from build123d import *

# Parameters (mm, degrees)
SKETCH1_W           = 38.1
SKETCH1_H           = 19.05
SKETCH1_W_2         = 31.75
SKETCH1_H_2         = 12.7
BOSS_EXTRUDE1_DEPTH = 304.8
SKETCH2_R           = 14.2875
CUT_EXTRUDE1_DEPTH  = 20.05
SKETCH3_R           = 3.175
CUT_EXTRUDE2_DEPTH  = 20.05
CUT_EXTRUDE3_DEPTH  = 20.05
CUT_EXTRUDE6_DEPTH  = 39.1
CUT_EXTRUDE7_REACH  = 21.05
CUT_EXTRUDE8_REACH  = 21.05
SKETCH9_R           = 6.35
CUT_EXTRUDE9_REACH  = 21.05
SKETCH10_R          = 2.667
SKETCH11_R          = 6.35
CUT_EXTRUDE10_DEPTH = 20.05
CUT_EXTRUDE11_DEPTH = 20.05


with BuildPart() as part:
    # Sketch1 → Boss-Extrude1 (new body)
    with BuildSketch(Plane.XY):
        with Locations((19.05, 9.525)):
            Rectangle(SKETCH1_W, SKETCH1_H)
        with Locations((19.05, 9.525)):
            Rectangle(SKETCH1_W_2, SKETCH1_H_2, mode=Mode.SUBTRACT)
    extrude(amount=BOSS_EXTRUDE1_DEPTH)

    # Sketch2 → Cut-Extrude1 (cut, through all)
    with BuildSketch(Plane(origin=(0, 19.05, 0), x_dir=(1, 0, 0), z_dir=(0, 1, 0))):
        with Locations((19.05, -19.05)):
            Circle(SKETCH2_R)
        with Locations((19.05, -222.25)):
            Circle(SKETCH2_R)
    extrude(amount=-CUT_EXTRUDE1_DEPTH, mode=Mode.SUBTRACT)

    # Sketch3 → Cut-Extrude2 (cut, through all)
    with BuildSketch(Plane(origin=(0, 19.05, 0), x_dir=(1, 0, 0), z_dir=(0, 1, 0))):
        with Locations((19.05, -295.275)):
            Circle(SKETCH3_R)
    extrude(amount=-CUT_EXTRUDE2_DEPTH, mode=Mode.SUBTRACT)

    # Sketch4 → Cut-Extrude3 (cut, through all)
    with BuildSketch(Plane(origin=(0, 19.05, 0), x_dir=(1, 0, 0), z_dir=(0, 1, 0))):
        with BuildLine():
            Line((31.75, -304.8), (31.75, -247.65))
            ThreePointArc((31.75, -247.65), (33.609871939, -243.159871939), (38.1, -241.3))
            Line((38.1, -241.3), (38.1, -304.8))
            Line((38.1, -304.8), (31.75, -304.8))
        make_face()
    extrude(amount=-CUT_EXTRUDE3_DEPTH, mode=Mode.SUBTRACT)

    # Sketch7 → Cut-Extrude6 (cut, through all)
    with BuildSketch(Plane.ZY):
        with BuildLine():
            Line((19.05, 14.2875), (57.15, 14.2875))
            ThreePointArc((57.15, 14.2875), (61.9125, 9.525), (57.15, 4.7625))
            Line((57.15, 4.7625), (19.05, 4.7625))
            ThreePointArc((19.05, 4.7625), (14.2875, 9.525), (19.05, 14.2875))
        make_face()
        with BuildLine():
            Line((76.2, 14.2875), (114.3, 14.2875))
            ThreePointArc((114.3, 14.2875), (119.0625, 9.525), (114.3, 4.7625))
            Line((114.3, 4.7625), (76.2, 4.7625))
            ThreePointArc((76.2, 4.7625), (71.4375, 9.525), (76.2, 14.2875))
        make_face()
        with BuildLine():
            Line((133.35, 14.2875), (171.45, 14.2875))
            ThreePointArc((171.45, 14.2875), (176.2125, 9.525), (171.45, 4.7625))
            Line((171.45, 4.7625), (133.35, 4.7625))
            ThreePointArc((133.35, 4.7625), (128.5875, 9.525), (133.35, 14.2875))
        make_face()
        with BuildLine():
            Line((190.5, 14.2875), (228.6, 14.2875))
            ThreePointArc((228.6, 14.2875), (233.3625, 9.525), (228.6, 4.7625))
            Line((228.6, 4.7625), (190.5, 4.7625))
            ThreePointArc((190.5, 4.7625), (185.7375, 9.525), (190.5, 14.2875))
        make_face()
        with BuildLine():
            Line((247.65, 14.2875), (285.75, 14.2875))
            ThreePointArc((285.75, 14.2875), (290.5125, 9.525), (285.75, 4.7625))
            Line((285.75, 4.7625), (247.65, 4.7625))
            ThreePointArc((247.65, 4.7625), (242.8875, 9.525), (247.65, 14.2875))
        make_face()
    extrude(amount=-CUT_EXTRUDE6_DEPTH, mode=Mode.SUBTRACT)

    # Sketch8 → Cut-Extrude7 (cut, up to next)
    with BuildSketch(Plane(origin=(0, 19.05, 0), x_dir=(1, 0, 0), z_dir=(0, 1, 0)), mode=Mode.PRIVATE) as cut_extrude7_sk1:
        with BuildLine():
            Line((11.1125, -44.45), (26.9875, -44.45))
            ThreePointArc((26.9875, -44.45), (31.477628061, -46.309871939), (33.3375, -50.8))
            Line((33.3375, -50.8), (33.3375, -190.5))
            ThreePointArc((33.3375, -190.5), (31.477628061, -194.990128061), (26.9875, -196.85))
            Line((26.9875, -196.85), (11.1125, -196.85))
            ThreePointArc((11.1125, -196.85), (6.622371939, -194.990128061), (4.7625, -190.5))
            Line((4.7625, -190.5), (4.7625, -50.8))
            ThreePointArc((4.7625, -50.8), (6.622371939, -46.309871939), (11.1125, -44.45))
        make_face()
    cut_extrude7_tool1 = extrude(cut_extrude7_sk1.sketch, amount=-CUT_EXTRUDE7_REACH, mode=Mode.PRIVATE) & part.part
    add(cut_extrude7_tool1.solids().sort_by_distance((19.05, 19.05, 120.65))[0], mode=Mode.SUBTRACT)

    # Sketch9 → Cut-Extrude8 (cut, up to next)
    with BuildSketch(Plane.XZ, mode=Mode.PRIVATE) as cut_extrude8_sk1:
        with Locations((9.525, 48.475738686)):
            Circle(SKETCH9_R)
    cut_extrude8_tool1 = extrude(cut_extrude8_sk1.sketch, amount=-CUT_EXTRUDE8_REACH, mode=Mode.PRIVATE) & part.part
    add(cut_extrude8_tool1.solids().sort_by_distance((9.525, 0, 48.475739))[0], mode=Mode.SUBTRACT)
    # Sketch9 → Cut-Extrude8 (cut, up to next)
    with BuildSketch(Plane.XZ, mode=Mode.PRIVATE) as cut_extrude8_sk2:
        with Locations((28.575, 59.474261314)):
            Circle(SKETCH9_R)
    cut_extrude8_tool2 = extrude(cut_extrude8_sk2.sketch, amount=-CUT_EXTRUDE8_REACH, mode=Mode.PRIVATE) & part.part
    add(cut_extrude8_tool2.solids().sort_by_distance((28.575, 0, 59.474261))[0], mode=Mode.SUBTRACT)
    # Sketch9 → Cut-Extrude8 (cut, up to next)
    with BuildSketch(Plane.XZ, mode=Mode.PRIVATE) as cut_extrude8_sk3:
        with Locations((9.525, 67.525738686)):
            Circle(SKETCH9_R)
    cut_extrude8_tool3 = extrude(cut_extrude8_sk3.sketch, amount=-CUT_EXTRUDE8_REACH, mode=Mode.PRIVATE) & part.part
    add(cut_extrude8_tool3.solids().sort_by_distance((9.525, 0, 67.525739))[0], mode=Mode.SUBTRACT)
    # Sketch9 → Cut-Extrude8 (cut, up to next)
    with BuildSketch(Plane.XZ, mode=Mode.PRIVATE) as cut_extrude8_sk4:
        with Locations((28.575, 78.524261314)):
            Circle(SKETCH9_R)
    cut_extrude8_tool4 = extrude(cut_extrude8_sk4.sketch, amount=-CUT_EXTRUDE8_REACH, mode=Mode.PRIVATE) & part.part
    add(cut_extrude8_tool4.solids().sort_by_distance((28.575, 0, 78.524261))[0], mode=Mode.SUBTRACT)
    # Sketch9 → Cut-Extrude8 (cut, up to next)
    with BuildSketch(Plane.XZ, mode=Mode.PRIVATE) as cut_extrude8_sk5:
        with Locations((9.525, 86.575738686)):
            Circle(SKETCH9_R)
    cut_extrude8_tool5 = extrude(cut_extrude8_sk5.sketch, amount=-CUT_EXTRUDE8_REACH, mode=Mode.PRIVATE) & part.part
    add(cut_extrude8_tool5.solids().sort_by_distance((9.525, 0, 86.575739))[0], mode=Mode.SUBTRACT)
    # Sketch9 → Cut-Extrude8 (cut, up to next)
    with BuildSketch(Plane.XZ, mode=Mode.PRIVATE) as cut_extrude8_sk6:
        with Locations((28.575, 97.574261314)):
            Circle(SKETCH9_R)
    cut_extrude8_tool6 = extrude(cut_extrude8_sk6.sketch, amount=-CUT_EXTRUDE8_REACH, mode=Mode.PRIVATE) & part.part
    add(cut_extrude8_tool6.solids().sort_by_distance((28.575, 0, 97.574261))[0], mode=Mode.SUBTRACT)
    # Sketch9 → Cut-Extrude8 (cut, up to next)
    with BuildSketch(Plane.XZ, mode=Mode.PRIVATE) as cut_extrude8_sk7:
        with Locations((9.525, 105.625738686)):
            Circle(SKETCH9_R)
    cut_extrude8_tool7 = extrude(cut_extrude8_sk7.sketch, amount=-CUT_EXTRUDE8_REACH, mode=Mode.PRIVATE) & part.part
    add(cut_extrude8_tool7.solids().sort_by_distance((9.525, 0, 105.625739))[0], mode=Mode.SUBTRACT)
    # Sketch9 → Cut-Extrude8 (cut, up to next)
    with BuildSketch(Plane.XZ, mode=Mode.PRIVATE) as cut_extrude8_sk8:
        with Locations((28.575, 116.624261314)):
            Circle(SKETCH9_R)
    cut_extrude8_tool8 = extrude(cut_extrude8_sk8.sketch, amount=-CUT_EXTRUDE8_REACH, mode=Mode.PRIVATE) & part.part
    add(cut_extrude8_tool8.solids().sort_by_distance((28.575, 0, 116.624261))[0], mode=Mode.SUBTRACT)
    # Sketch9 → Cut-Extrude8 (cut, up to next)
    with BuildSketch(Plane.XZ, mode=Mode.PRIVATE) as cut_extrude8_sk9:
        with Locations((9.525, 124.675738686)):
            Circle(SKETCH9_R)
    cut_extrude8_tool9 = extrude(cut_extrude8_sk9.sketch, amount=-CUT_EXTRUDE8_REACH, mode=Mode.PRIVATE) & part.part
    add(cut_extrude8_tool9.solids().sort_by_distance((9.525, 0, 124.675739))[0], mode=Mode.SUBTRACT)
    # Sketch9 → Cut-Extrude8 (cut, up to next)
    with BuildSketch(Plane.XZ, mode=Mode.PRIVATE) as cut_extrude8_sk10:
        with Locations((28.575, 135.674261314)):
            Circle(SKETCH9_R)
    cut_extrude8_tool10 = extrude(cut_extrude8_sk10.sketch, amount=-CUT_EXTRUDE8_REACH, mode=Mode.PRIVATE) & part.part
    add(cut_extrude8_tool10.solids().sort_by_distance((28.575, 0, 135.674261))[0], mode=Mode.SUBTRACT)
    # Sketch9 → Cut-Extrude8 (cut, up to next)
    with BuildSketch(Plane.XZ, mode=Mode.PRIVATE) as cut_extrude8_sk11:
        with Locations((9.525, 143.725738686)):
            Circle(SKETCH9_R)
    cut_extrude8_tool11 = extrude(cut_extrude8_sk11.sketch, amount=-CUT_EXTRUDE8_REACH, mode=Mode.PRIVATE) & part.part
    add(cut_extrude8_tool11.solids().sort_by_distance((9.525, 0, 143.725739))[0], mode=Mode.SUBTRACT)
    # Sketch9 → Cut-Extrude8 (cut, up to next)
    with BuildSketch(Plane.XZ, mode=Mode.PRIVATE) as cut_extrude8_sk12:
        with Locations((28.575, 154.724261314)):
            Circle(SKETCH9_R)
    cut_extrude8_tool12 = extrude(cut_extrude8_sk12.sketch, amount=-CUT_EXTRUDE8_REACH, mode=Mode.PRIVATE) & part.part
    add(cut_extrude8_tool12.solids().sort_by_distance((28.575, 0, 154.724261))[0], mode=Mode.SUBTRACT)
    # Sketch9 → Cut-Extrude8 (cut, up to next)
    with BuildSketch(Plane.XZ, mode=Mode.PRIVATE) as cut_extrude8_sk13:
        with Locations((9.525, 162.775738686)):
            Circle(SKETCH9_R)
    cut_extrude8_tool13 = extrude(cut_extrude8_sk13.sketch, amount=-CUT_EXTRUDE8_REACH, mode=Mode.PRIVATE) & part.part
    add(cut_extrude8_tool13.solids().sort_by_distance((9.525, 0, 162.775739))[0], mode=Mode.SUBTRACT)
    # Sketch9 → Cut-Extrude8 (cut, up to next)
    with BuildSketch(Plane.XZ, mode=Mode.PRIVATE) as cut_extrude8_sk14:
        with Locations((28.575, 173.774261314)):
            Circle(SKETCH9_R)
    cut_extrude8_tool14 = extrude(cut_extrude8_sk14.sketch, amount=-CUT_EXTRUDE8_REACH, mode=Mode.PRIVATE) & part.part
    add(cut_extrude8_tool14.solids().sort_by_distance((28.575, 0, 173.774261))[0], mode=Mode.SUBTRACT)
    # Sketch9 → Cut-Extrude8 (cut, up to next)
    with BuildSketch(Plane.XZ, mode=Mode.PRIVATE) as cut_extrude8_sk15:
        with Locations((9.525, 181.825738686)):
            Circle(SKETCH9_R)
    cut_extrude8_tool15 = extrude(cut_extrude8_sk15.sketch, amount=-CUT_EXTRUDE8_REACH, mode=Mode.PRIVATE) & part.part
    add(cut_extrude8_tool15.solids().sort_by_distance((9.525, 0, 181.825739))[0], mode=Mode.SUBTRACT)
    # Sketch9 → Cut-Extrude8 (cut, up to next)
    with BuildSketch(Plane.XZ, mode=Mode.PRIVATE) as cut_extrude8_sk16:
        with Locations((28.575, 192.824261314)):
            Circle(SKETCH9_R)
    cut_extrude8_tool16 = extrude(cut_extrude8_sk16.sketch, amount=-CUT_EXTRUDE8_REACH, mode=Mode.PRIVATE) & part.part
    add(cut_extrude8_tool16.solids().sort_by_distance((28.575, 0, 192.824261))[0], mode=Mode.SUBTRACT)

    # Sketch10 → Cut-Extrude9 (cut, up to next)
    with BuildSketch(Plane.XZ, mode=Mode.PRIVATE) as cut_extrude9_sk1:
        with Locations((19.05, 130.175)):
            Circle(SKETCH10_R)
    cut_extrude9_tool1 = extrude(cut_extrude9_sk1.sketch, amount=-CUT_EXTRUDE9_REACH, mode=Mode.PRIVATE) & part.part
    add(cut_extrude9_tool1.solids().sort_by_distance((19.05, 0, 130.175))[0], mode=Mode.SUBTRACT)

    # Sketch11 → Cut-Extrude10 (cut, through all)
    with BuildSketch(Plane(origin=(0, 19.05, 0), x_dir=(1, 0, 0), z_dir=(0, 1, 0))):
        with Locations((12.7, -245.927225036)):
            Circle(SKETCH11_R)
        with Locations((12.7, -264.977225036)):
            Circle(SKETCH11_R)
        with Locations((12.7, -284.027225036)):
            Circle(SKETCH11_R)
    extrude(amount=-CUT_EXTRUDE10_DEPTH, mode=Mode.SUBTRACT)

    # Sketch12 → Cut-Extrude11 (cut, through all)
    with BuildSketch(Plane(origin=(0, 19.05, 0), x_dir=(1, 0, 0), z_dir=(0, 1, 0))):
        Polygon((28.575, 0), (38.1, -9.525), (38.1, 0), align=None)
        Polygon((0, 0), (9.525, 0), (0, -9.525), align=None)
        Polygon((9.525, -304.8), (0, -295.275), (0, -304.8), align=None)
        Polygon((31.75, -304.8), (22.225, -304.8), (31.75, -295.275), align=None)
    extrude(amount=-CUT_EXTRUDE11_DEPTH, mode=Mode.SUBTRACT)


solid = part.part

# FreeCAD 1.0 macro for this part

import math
import FreeCAD as App
import Part
import Sketcher
from FreeCAD import Vector
Q = App.Units.Quantity


def add_polygon(sketch, points):
    """Adds a closed chain of lines whose ends are joined by coincident constraints."""
    first, n = sketch.GeometryCount, len(points)
    for a, b in zip(points, points[1:] + points[:1]):
        sketch.addGeometry(Part.LineSegment(App.Vector(*a, 0), App.Vector(*b, 0)), False)
    for i in range(n):
        sketch.addConstraint(Sketcher.Constraint("Coincident", first + i, 2, first + (i + 1) % n, 1))

doc = App.newDocument("Part")
body = doc.addObject("PartDesign::Body", "Body")

# Sketch on XY plane
sketch1 = doc.addObject("Sketcher::SketchObject", "Sketch")
body.addObject(sketch1)
sketch1.AttachmentSupport = (doc.XY_Plane, [""])
sketch1.MapMode = "FlatFace"
add_polygon(sketch1, [(0, 19), (0, 0), (38, 0), (38, 19)])  # lines 0-3
add_polygon(sketch1, [(35, 3), (3, 3), (3, 16), (35, 16)])  # lines 4-7
sketch1.addConstraint([
    Sketcher.Constraint("Vertical", 0),
    Sketcher.Constraint("Horizontal", 1),
    Sketcher.Constraint("Vertical", 2),
    Sketcher.Constraint("Horizontal", 3),
    Sketcher.Constraint("Horizontal", 4),
    Sketcher.Constraint("Vertical", 5),
    Sketcher.Constraint("Horizontal", 6),
    Sketcher.Constraint("Vertical", 7),
    Sketcher.Constraint("Coincident", 0, 2, -1, 1),
    Sketcher.Constraint("DistanceX", 1, 1, 1, 2, Q("1.5 in")),
    Sketcher.Constraint("DistanceY", 5, 1, 5, 2, Q("0.5 in")),
    Sketcher.Constraint("DistanceX", 4, 2, 4, 1, Q("1.25 in")),
    Sketcher.Constraint("DistanceY", 0, 2, 0, 1, Q("0.75 in")),
    Sketcher.Constraint("DistanceX", -1, 1, 4, 2, Q("0.125 in")),
    Sketcher.Constraint("DistanceY", -1, 1, 4, 2, Q("0.125 in")),
])
pad1 = doc.addObject("PartDesign::Pad", "Pad")
body.addObject(pad1)
pad1.Profile = sketch1
pad1.Length = Q("12 in")

# Sketch on XZ plane
sketch2 = doc.addObject("Sketcher::SketchObject", "Sketch001")
body.addObject(sketch2)
sketch2.AttachmentSupport = (doc.XZ_Plane, [""])
sketch2.MapMode = "FlatFace"
sketch2.AttachmentOffset = App.Placement(Vector(0, 0, -0.75 * 25.4), App.Rotation())
sketch2.addGeometry([
    Part.Circle(Vector(19, 19, 0), Vector(0, 0, 1), 14),
    Part.Circle(Vector(19, 222, 0), Vector(0, 0, 1), 14),
], False)
sketch2.addConstraint([
    Sketcher.Constraint("Equal", 0, 1),
    Sketcher.Constraint("Vertical", 0, 3, 1, 3),
    Sketcher.Constraint("Diameter", 0, Q("1.125 in")),
    Sketcher.Constraint("DistanceY", 0, 3, 1, 3, Q("8 in")),
    Sketcher.Constraint("DistanceX", -1, 1, 0, 3, Q("0.75 in")),
    Sketcher.Constraint("DistanceY", -1, 1, 0, 3, Q("0.75 in")),
])
pocket1 = doc.addObject("PartDesign::Pocket", "Pocket")
body.addObject(pocket1)
pocket1.Profile = sketch2
pocket1.Type = "ThroughAll"
pocket1.Reversed = True

# Sketch on XZ plane
sketch3 = doc.addObject("Sketcher::SketchObject", "Sketch002")
body.addObject(sketch3)
sketch3.AttachmentSupport = (doc.XZ_Plane, [""])
sketch3.MapMode = "FlatFace"
sketch3.AttachmentOffset = App.Placement(Vector(0, 0, -0.75 * 25.4), App.Rotation())
sketch3.addGeometry(Part.Circle(Vector(19.1, 295.3, 0), Vector(0, 0, 1), 3.2), False)
sketch3.addConstraint([
    Sketcher.Constraint("Diameter", 0, Q("0.25 in")),
    Sketcher.Constraint("DistanceX", -1, 1, 0, 3, Q("0.75 in")),
    Sketcher.Constraint("DistanceY", -1, 1, 0, 3, Q("11.625 in")),
])
pocket2 = doc.addObject("PartDesign::Pocket", "Pocket001")
body.addObject(pocket2)
pocket2.Profile = sketch3
pocket2.Type = "ThroughAll"
pocket2.Reversed = True

# Sketch on XZ plane
sketch4 = doc.addObject("Sketcher::SketchObject", "Sketch003")
body.addObject(sketch4)
sketch4.AttachmentSupport = (doc.XZ_Plane, [""])
sketch4.MapMode = "FlatFace"
sketch4.AttachmentOffset = App.Placement(Vector(0, 0, -0.75 * 25.4), App.Rotation())
sketch4.addGeometry([
    Part.LineSegment(Vector(32, 248, 0), Vector(32, 305, 0)),
    Part.LineSegment(Vector(32, 305, 0), Vector(38, 305, 0)),
    Part.LineSegment(Vector(38, 305, 0), Vector(38, 241, 0)),
    Part.ArcOfCircle(Part.Circle(Vector(38, 248, 0), Vector(0, 0, 1), 6), math.radians(180), math.radians(270)),
], False)
sketch4.addConstraint([
    Sketcher.Constraint("Coincident", 0, 2, 1, 1),
    Sketcher.Constraint("Coincident", 1, 2, 2, 1),
    Sketcher.Constraint("Coincident", 2, 2, 3, 2),
    Sketcher.Constraint("Tangent", 3, 1, 0, 1),
    Sketcher.Constraint("Vertical", 0),
    Sketcher.Constraint("Horizontal", 1),
    Sketcher.Constraint("Vertical", 2),
    Sketcher.Constraint("Vertical", 3, 3, 1, 2),
    Sketcher.Constraint("Radius", 3, Q("0.25 in")),
    Sketcher.Constraint("DistanceY", 2, 2, 2, 1, Q("2.5 in")),
    Sketcher.Constraint("DistanceY", -1, 1, 0, 2, Q("12 in")),
    Sketcher.Constraint("DistanceX", -1, 1, 3, 3, Q("1.5 in")),
])
pocket3 = doc.addObject("PartDesign::Pocket", "Pocket002")
body.addObject(pocket3)
pocket3.Profile = sketch4
pocket3.Type = "ThroughAll"
pocket3.Reversed = True

# Sketch on YZ plane
sketch5 = doc.addObject("Sketcher::SketchObject", "Sketch004")
body.addObject(sketch5)
sketch5.AttachmentSupport = (doc.YZ_Plane, [""])
sketch5.MapMode = "FlatFace"
sketch5.addGeometry([
    Part.LineSegment(Vector(14.3, 57.1, 0), Vector(14.3, 19.1, 0)),  # 0
    Part.ArcOfCircle(Part.Circle(Vector(9.5, 19.1, 0), Vector(0, 0, 1), 4.8), math.radians(180), math.radians(360)),  # 1
    Part.LineSegment(Vector(4.8, 19.1, 0), Vector(4.8, 57.1, 0)),  # 2
    Part.ArcOfCircle(Part.Circle(Vector(9.5, 57.1, 0), Vector(0, 0, 1), 4.8), math.radians(0), math.radians(180)),  # 3
    Part.LineSegment(Vector(14.3, 114.3, 0), Vector(14.3, 76.2, 0)),  # 4
    Part.ArcOfCircle(Part.Circle(Vector(9.5, 76.2, 0), Vector(0, 0, 1), 4.8), math.radians(180), math.radians(360)),  # 5
    Part.LineSegment(Vector(4.8, 76.2, 0), Vector(4.8, 114.3, 0)),  # 6
    Part.ArcOfCircle(Part.Circle(Vector(9.5, 114.3, 0), Vector(0, 0, 1), 4.8), math.radians(0), math.radians(180)),  # 7
    Part.LineSegment(Vector(14.3, 171.4, 0), Vector(14.3, 133.3, 0)),  # 8
    Part.ArcOfCircle(Part.Circle(Vector(9.5, 133.3, 0), Vector(0, 0, 1), 4.8), math.radians(180), math.radians(360)),  # 9
    Part.LineSegment(Vector(4.8, 133.3, 0), Vector(4.8, 171.4, 0)),  # 10
    Part.ArcOfCircle(Part.Circle(Vector(9.5, 171.4, 0), Vector(0, 0, 1), 4.8), math.radians(0), math.radians(180)),  # 11
    Part.LineSegment(Vector(14.3, 228.6, 0), Vector(14.3, 190.5, 0)),  # 12
    Part.ArcOfCircle(Part.Circle(Vector(9.5, 190.5, 0), Vector(0, 0, 1), 4.8), math.radians(180), math.radians(360)),  # 13
    Part.LineSegment(Vector(4.8, 190.5, 0), Vector(4.8, 228.6, 0)),  # 14
    Part.ArcOfCircle(Part.Circle(Vector(9.5, 228.6, 0), Vector(0, 0, 1), 4.8), math.radians(0), math.radians(180)),  # 15
    Part.LineSegment(Vector(14.3, 285.8, 0), Vector(14.3, 247.7, 0)),  # 16
    Part.ArcOfCircle(Part.Circle(Vector(9.5, 247.7, 0), Vector(0, 0, 1), 4.8), math.radians(180), math.radians(360)),  # 17
    Part.LineSegment(Vector(4.8, 247.7, 0), Vector(4.8, 285.8, 0)),  # 18
    Part.ArcOfCircle(Part.Circle(Vector(9.5, 285.8, 0), Vector(0, 0, 1), 4.8), math.radians(0), math.radians(180)),  # 19
], False)
sketch5.addConstraint([
    Sketcher.Constraint("Tangent", 0, 2, 1, 2),
    Sketcher.Constraint("Tangent", 1, 1, 2, 1),
    Sketcher.Constraint("Tangent", 2, 2, 3, 2),
    Sketcher.Constraint("Tangent", 3, 1, 0, 1),
    Sketcher.Constraint("Tangent", 4, 2, 5, 2),
    Sketcher.Constraint("Tangent", 5, 1, 6, 1),
    Sketcher.Constraint("Tangent", 6, 2, 7, 2),
    Sketcher.Constraint("Tangent", 7, 1, 4, 1),
    Sketcher.Constraint("Tangent", 8, 2, 9, 2),
    Sketcher.Constraint("Tangent", 9, 1, 10, 1),
    Sketcher.Constraint("Tangent", 10, 2, 11, 2),
    Sketcher.Constraint("Tangent", 11, 1, 8, 1),
    Sketcher.Constraint("Tangent", 12, 2, 13, 2),
    Sketcher.Constraint("Tangent", 13, 1, 14, 1),
    Sketcher.Constraint("Tangent", 14, 2, 15, 2),
    Sketcher.Constraint("Tangent", 15, 1, 12, 1),
    Sketcher.Constraint("Tangent", 16, 2, 17, 2),
    Sketcher.Constraint("Tangent", 17, 1, 18, 1),
    Sketcher.Constraint("Tangent", 18, 2, 19, 2),
    Sketcher.Constraint("Tangent", 19, 1, 16, 1),
    Sketcher.Constraint("Vertical", 0),
    Sketcher.Constraint("Vertical", 2),
    Sketcher.Constraint("Vertical", 4),
    Sketcher.Constraint("Vertical", 6),
    Sketcher.Constraint("Vertical", 8),
    Sketcher.Constraint("Vertical", 10),
    Sketcher.Constraint("Vertical", 12),
    Sketcher.Constraint("Vertical", 14),
    Sketcher.Constraint("Vertical", 16),
    Sketcher.Constraint("Vertical", 18),
    Sketcher.Constraint("Equal", 3, 5),
    Sketcher.Constraint("Equal", 7, 9),
    Sketcher.Constraint("Equal", 11, 13),
    Sketcher.Constraint("Equal", 15, 17),
    Sketcher.Constraint("Vertical", 3, 3, 5, 3),
    Sketcher.Constraint("Vertical", 7, 3, 9, 3),
    Sketcher.Constraint("Vertical", 11, 3, 13, 3),
    Sketcher.Constraint("Vertical", 15, 3, 17, 3),
    Sketcher.Constraint("Equal", 2, 4),
    Sketcher.Constraint("Equal", 6, 8),
    Sketcher.Constraint("Equal", 10, 12),
    Sketcher.Constraint("Equal", 14, 16),
    Sketcher.Constraint("DistanceY", 0, 2, 0, 1, Q("1.5 in")),
    Sketcher.Constraint("DistanceY", -1, 1, 5, 3, Q("3 in")),
    Sketcher.Constraint("DistanceY", -1, 1, 15, 3, Q("9 in")),
    Sketcher.Constraint("Radius", 1, Q("0.1875 in")),
    Sketcher.Constraint("DistanceY", 3, 3, 9, 3, Q("3 in")),
    Sketcher.Constraint("DistanceY", 11, 3, 17, 3, Q("3 in")),
    Sketcher.Constraint("DistanceY", -1, 1, 1, 3, Q("0.75 in")),
    Sketcher.Constraint("DistanceX", -1, 1, 1, 3, Q("0.375 in")),
])
pocket4 = doc.addObject("PartDesign::Pocket", "Pocket003")
body.addObject(pocket4)
pocket4.Profile = sketch5
pocket4.Type = "ThroughAll"
pocket4.Reversed = True

# Sketch on XZ plane
sketch6 = doc.addObject("Sketcher::SketchObject", "Sketch005")
body.addObject(sketch6)
sketch6.AttachmentSupport = (doc.XZ_Plane, [""])
sketch6.MapMode = "FlatFace"
sketch6.AttachmentOffset = App.Placement(Vector(0, 0, -0.75 * 25.4), App.Rotation())
sketch6.addGeometry([
    Part.LineSegment(Vector(27, 44, 0), Vector(11, 44, 0)),  # 0
    Part.ArcOfCircle(Part.Circle(Vector(11, 51, 0), Vector(0, 0, 1), 6), math.radians(180), math.radians(270)),  # 1
    Part.LineSegment(Vector(5, 51, 0), Vector(5, 190, 0)),  # 2
    Part.ArcOfCircle(Part.Circle(Vector(11, 191, 0), Vector(0, 0, 1), 6), math.radians(90), math.radians(180)),  # 3
    Part.LineSegment(Vector(11, 197, 0), Vector(27, 197, 0)),  # 4
    Part.ArcOfCircle(Part.Circle(Vector(27, 191, 0), Vector(0, 0, 1), 6), math.radians(0), math.radians(90)),  # 5
    Part.LineSegment(Vector(33, 190, 0), Vector(33, 51, 0)),  # 6
    Part.ArcOfCircle(Part.Circle(Vector(27, 51, 0), Vector(0, 0, 1), 6), math.radians(-90), math.radians(0)),  # 7
], False)
sketch6.addConstraint([
    Sketcher.Constraint("Tangent", 0, 2, 1, 2),
    Sketcher.Constraint("Tangent", 1, 1, 2, 1),
    Sketcher.Constraint("Tangent", 2, 2, 3, 2),
    Sketcher.Constraint("Tangent", 3, 1, 4, 1),
    Sketcher.Constraint("Tangent", 4, 2, 5, 2),
    Sketcher.Constraint("Tangent", 5, 1, 6, 1),
    Sketcher.Constraint("Tangent", 6, 2, 7, 2),
    Sketcher.Constraint("Tangent", 7, 1, 0, 1),
    Sketcher.Constraint("Horizontal", 0),
    Sketcher.Constraint("Vertical", 2),
    Sketcher.Constraint("Horizontal", 4),
    Sketcher.Constraint("Vertical", 6),
    Sketcher.Constraint("Equal", 1, 3),
    Sketcher.Constraint("Equal", 3, 5),
    Sketcher.Constraint("Equal", 5, 7),
    Sketcher.Constraint("Radius", 1, Q("0.25 in")),
    Sketcher.Constraint("DistanceY", 2, 1, 2, 2, Q("5.5 in")),
    Sketcher.Constraint("DistanceY", -1, 1, 1, 3, Q("2 in")),
    Sketcher.Constraint("DistanceX", 0, 2, 0, 1, Q("0.625 in")),
    Sketcher.Constraint("DistanceX", -1, 1, 1, 3, Q("0.4375 in")),
])
pocket5 = doc.addObject("PartDesign::Pocket", "Pocket004")
body.addObject(pocket5)
pocket5.Profile = sketch6
pocket5.Type = "UpToFirst"
pocket5.Reversed = True

# Sketch on XZ plane
sketch7 = doc.addObject("Sketcher::SketchObject", "Sketch006")
body.addObject(sketch7)
sketch7.AttachmentSupport = (doc.XZ_Plane, [""])
sketch7.MapMode = "FlatFace"
sketch7.addGeometry(Part.Circle(Vector(10, 48, 0), Vector(0, 0, 1), 6), False)
sketch7.addConstraint([
    Sketcher.Constraint("Diameter", 0, Q("0.5 in")),
    Sketcher.Constraint("DistanceX", -1, 1, 0, 3, Q("0.375 in")),
    Sketcher.Constraint("DistanceY", -1, 1, 0, 3, 48.475739),
])
pocket6 = doc.addObject("PartDesign::Pocket", "Pocket005")
body.addObject(pocket6)
pocket6.Profile = sketch7
pocket6.Type = "UpToFirst"

# Sketch on XZ plane
sketch8 = doc.addObject("Sketcher::SketchObject", "Sketch007")
body.addObject(sketch8)
sketch8.AttachmentSupport = (doc.XZ_Plane, [""])
sketch8.MapMode = "FlatFace"
sketch8.addGeometry(Part.Circle(Vector(29, 59, 0), Vector(0, 0, 1), 6), False)
sketch8.addConstraint([
    Sketcher.Constraint("Diameter", 0, Q("0.5 in")),
    Sketcher.Constraint("DistanceX", -1, 1, 0, 3, Q("1.125 in")),
    Sketcher.Constraint("DistanceY", -1, 1, 0, 3, 59.474261),
])
pocket7 = doc.addObject("PartDesign::Pocket", "Pocket006")
body.addObject(pocket7)
pocket7.Profile = sketch8
pocket7.Type = "UpToFirst"

# Sketch on XZ plane
sketch9 = doc.addObject("Sketcher::SketchObject", "Sketch008")
body.addObject(sketch9)
sketch9.AttachmentSupport = (doc.XZ_Plane, [""])
sketch9.MapMode = "FlatFace"
sketch9.addGeometry(Part.Circle(Vector(10, 68, 0), Vector(0, 0, 1), 6), False)
sketch9.addConstraint([
    Sketcher.Constraint("Diameter", 0, Q("0.5 in")),
    Sketcher.Constraint("DistanceX", -1, 1, 0, 3, Q("0.375 in")),
    Sketcher.Constraint("DistanceY", -1, 1, 0, 3, 67.525739),
])
pocket8 = doc.addObject("PartDesign::Pocket", "Pocket007")
body.addObject(pocket8)
pocket8.Profile = sketch9
pocket8.Type = "UpToFirst"

# Sketch on XZ plane
sketch10 = doc.addObject("Sketcher::SketchObject", "Sketch009")
body.addObject(sketch10)
sketch10.AttachmentSupport = (doc.XZ_Plane, [""])
sketch10.MapMode = "FlatFace"
sketch10.addGeometry(Part.Circle(Vector(29, 79, 0), Vector(0, 0, 1), 6), False)
sketch10.addConstraint([
    Sketcher.Constraint("Diameter", 0, Q("0.5 in")),
    Sketcher.Constraint("DistanceX", -1, 1, 0, 3, Q("1.125 in")),
    Sketcher.Constraint("DistanceY", -1, 1, 0, 3, 78.524261),
])
pocket9 = doc.addObject("PartDesign::Pocket", "Pocket008")
body.addObject(pocket9)
pocket9.Profile = sketch10
pocket9.Type = "UpToFirst"

# Sketch on XZ plane
sketch11 = doc.addObject("Sketcher::SketchObject", "Sketch010")
body.addObject(sketch11)
sketch11.AttachmentSupport = (doc.XZ_Plane, [""])
sketch11.MapMode = "FlatFace"
sketch11.addGeometry(Part.Circle(Vector(10, 87, 0), Vector(0, 0, 1), 6), False)
sketch11.addConstraint([
    Sketcher.Constraint("Diameter", 0, Q("0.5 in")),
    Sketcher.Constraint("DistanceX", -1, 1, 0, 3, Q("0.375 in")),
    Sketcher.Constraint("DistanceY", -1, 1, 0, 3, 86.575739),
])
pocket10 = doc.addObject("PartDesign::Pocket", "Pocket009")
body.addObject(pocket10)
pocket10.Profile = sketch11
pocket10.Type = "UpToFirst"

# Sketch on XZ plane
sketch12 = doc.addObject("Sketcher::SketchObject", "Sketch011")
body.addObject(sketch12)
sketch12.AttachmentSupport = (doc.XZ_Plane, [""])
sketch12.MapMode = "FlatFace"
sketch12.addGeometry(Part.Circle(Vector(29, 98, 0), Vector(0, 0, 1), 6), False)
sketch12.addConstraint([
    Sketcher.Constraint("Diameter", 0, Q("0.5 in")),
    Sketcher.Constraint("DistanceX", -1, 1, 0, 3, Q("1.125 in")),
    Sketcher.Constraint("DistanceY", -1, 1, 0, 3, 97.574261),
])
pocket11 = doc.addObject("PartDesign::Pocket", "Pocket010")
body.addObject(pocket11)
pocket11.Profile = sketch12
pocket11.Type = "UpToFirst"

# Sketch on XZ plane
sketch13 = doc.addObject("Sketcher::SketchObject", "Sketch012")
body.addObject(sketch13)
sketch13.AttachmentSupport = (doc.XZ_Plane, [""])
sketch13.MapMode = "FlatFace"
sketch13.addGeometry(Part.Circle(Vector(10, 106, 0), Vector(0, 0, 1), 6), False)
sketch13.addConstraint([
    Sketcher.Constraint("Diameter", 0, Q("0.5 in")),
    Sketcher.Constraint("DistanceX", -1, 1, 0, 3, Q("0.375 in")),
    Sketcher.Constraint("DistanceY", -1, 1, 0, 3, 105.625739),
])
pocket12 = doc.addObject("PartDesign::Pocket", "Pocket011")
body.addObject(pocket12)
pocket12.Profile = sketch13
pocket12.Type = "UpToFirst"

# Sketch on XZ plane
sketch14 = doc.addObject("Sketcher::SketchObject", "Sketch013")
body.addObject(sketch14)
sketch14.AttachmentSupport = (doc.XZ_Plane, [""])
sketch14.MapMode = "FlatFace"
sketch14.addGeometry(Part.Circle(Vector(29, 117, 0), Vector(0, 0, 1), 6), False)
sketch14.addConstraint([
    Sketcher.Constraint("Diameter", 0, Q("0.5 in")),
    Sketcher.Constraint("DistanceX", -1, 1, 0, 3, Q("1.125 in")),
    Sketcher.Constraint("DistanceY", -1, 1, 0, 3, 116.624261),
])
pocket13 = doc.addObject("PartDesign::Pocket", "Pocket012")
body.addObject(pocket13)
pocket13.Profile = sketch14
pocket13.Type = "UpToFirst"

# Sketch on XZ plane
sketch15 = doc.addObject("Sketcher::SketchObject", "Sketch014")
body.addObject(sketch15)
sketch15.AttachmentSupport = (doc.XZ_Plane, [""])
sketch15.MapMode = "FlatFace"
sketch15.addGeometry(Part.Circle(Vector(10, 125, 0), Vector(0, 0, 1), 6), False)
sketch15.addConstraint([
    Sketcher.Constraint("Diameter", 0, Q("0.5 in")),
    Sketcher.Constraint("DistanceX", -1, 1, 0, 3, Q("0.375 in")),
    Sketcher.Constraint("DistanceY", -1, 1, 0, 3, 124.675739),
])
pocket14 = doc.addObject("PartDesign::Pocket", "Pocket013")
body.addObject(pocket14)
pocket14.Profile = sketch15
pocket14.Type = "UpToFirst"

# Sketch on XZ plane
sketch16 = doc.addObject("Sketcher::SketchObject", "Sketch015")
body.addObject(sketch16)
sketch16.AttachmentSupport = (doc.XZ_Plane, [""])
sketch16.MapMode = "FlatFace"
sketch16.addGeometry(Part.Circle(Vector(29, 136, 0), Vector(0, 0, 1), 6), False)
sketch16.addConstraint([
    Sketcher.Constraint("Diameter", 0, Q("0.5 in")),
    Sketcher.Constraint("DistanceX", -1, 1, 0, 3, Q("1.125 in")),
    Sketcher.Constraint("DistanceY", -1, 1, 0, 3, 135.674261),
])
pocket15 = doc.addObject("PartDesign::Pocket", "Pocket014")
body.addObject(pocket15)
pocket15.Profile = sketch16
pocket15.Type = "UpToFirst"

# Sketch on XZ plane
sketch17 = doc.addObject("Sketcher::SketchObject", "Sketch016")
body.addObject(sketch17)
sketch17.AttachmentSupport = (doc.XZ_Plane, [""])
sketch17.MapMode = "FlatFace"
sketch17.addGeometry(Part.Circle(Vector(10, 144, 0), Vector(0, 0, 1), 6), False)
sketch17.addConstraint([
    Sketcher.Constraint("Diameter", 0, Q("0.5 in")),
    Sketcher.Constraint("DistanceX", -1, 1, 0, 3, Q("0.375 in")),
    Sketcher.Constraint("DistanceY", -1, 1, 0, 3, 143.725739),
])
pocket16 = doc.addObject("PartDesign::Pocket", "Pocket015")
body.addObject(pocket16)
pocket16.Profile = sketch17
pocket16.Type = "UpToFirst"

# Sketch on XZ plane
sketch18 = doc.addObject("Sketcher::SketchObject", "Sketch017")
body.addObject(sketch18)
sketch18.AttachmentSupport = (doc.XZ_Plane, [""])
sketch18.MapMode = "FlatFace"
sketch18.addGeometry(Part.Circle(Vector(29, 155, 0), Vector(0, 0, 1), 6), False)
sketch18.addConstraint([
    Sketcher.Constraint("Diameter", 0, Q("0.5 in")),
    Sketcher.Constraint("DistanceX", -1, 1, 0, 3, Q("1.125 in")),
    Sketcher.Constraint("DistanceY", -1, 1, 0, 3, 154.724261),
])
pocket17 = doc.addObject("PartDesign::Pocket", "Pocket016")
body.addObject(pocket17)
pocket17.Profile = sketch18
pocket17.Type = "UpToFirst"

# Sketch on XZ plane
sketch19 = doc.addObject("Sketcher::SketchObject", "Sketch018")
body.addObject(sketch19)
sketch19.AttachmentSupport = (doc.XZ_Plane, [""])
sketch19.MapMode = "FlatFace"
sketch19.addGeometry(Part.Circle(Vector(10, 163, 0), Vector(0, 0, 1), 6), False)
sketch19.addConstraint([
    Sketcher.Constraint("Diameter", 0, Q("0.5 in")),
    Sketcher.Constraint("DistanceX", -1, 1, 0, 3, Q("0.375 in")),
    Sketcher.Constraint("DistanceY", -1, 1, 0, 3, 162.775739),
])
pocket18 = doc.addObject("PartDesign::Pocket", "Pocket017")
body.addObject(pocket18)
pocket18.Profile = sketch19
pocket18.Type = "UpToFirst"

# Sketch on XZ plane
sketch20 = doc.addObject("Sketcher::SketchObject", "Sketch019")
body.addObject(sketch20)
sketch20.AttachmentSupport = (doc.XZ_Plane, [""])
sketch20.MapMode = "FlatFace"
sketch20.addGeometry(Part.Circle(Vector(29, 174, 0), Vector(0, 0, 1), 6), False)
sketch20.addConstraint([
    Sketcher.Constraint("Diameter", 0, Q("0.5 in")),
    Sketcher.Constraint("DistanceX", -1, 1, 0, 3, Q("1.125 in")),
    Sketcher.Constraint("DistanceY", -1, 1, 0, 3, 173.774261),
])
pocket19 = doc.addObject("PartDesign::Pocket", "Pocket018")
body.addObject(pocket19)
pocket19.Profile = sketch20
pocket19.Type = "UpToFirst"

# Sketch on XZ plane
sketch21 = doc.addObject("Sketcher::SketchObject", "Sketch020")
body.addObject(sketch21)
sketch21.AttachmentSupport = (doc.XZ_Plane, [""])
sketch21.MapMode = "FlatFace"
sketch21.addGeometry(Part.Circle(Vector(10, 182, 0), Vector(0, 0, 1), 6), False)
sketch21.addConstraint([
    Sketcher.Constraint("Diameter", 0, Q("0.5 in")),
    Sketcher.Constraint("DistanceX", -1, 1, 0, 3, Q("0.375 in")),
    Sketcher.Constraint("DistanceY", -1, 1, 0, 3, 181.825739),
])
pocket20 = doc.addObject("PartDesign::Pocket", "Pocket019")
body.addObject(pocket20)
pocket20.Profile = sketch21
pocket20.Type = "UpToFirst"

# Sketch on XZ plane
sketch22 = doc.addObject("Sketcher::SketchObject", "Sketch021")
body.addObject(sketch22)
sketch22.AttachmentSupport = (doc.XZ_Plane, [""])
sketch22.MapMode = "FlatFace"
sketch22.addGeometry(Part.Circle(Vector(29, 193, 0), Vector(0, 0, 1), 6), False)
sketch22.addConstraint([
    Sketcher.Constraint("Diameter", 0, Q("0.5 in")),
    Sketcher.Constraint("DistanceX", -1, 1, 0, 3, Q("1.125 in")),
    Sketcher.Constraint("DistanceY", -1, 1, 0, 3, 192.824261),
])
pocket21 = doc.addObject("PartDesign::Pocket", "Pocket020")
body.addObject(pocket21)
pocket21.Profile = sketch22
pocket21.Type = "UpToFirst"

# Sketch on XZ plane
sketch23 = doc.addObject("Sketcher::SketchObject", "Sketch022")
body.addObject(sketch23)
sketch23.AttachmentSupport = (doc.XZ_Plane, [""])
sketch23.MapMode = "FlatFace"
sketch23.addGeometry(Part.Circle(Vector(19.1, 130.2, 0), Vector(0, 0, 1), 2.7), False)
sketch23.addConstraint([
    Sketcher.Constraint("Diameter", 0, Q("0.21 in")),
    Sketcher.Constraint("DistanceX", -1, 1, 0, 3, Q("0.75 in")),
    Sketcher.Constraint("DistanceY", -1, 1, 0, 3, Q("5.125 in")),
])
pocket22 = doc.addObject("PartDesign::Pocket", "Pocket021")
body.addObject(pocket22)
pocket22.Profile = sketch23
pocket22.Type = "UpToFirst"

# Sketch on XZ plane
sketch24 = doc.addObject("Sketcher::SketchObject", "Sketch023")
body.addObject(sketch24)
sketch24.AttachmentSupport = (doc.XZ_Plane, [""])
sketch24.MapMode = "FlatFace"
sketch24.AttachmentOffset = App.Placement(Vector(0, 0, -0.75 * 25.4), App.Rotation())
sketch24.addGeometry([
    Part.Circle(Vector(13, 246, 0), Vector(0, 0, 1), 6),
    Part.Circle(Vector(13, 265, 0), Vector(0, 0, 1), 6),
    Part.Circle(Vector(13, 284, 0), Vector(0, 0, 1), 6),
], False)
sketch24.addConstraint([
    Sketcher.Constraint("Equal", 0, 1),
    Sketcher.Constraint("Equal", 1, 2),
    Sketcher.Constraint("Vertical", 0, 3, 1, 3),
    Sketcher.Constraint("Vertical", 1, 3, 2, 3),
    Sketcher.Constraint("Diameter", 0, Q("0.5 in")),
    Sketcher.Constraint("DistanceX", -1, 1, 0, 3, Q("0.5 in")),
    Sketcher.Constraint("DistanceY", 0, 3, 2, 3, Q("1.5 in")),
    Sketcher.Constraint("DistanceY", 0, 3, 1, 3, Q("0.75 in")),
    Sketcher.Constraint("DistanceY", -1, 1, 0, 3, 245.927225),
])
pocket23 = doc.addObject("PartDesign::Pocket", "Pocket022")
body.addObject(pocket23)
pocket23.Profile = sketch24
pocket23.Type = "ThroughAll"
pocket23.Reversed = True

# Sketch on XZ plane
sketch25 = doc.addObject("Sketcher::SketchObject", "Sketch024")
body.addObject(sketch25)
sketch25.AttachmentSupport = (doc.XZ_Plane, [""])
sketch25.MapMode = "FlatFace"
sketch25.AttachmentOffset = App.Placement(Vector(0, 0, -0.75 * 25.4), App.Rotation())
add_polygon(sketch25, [(29, 0), (38, 10), (38, 0)])  # lines 0-2
add_polygon(sketch25, [(10, 0), (0, 0), (0, 10)])  # lines 3-5
add_polygon(sketch25, [(10, 305), (0, 295), (0, 305)])  # lines 6-8
add_polygon(sketch25, [(22, 305), (32, 305), (32, 295)])  # lines 9-11
sketch25.addConstraint([
    Sketcher.Constraint("Vertical", 1),
    Sketcher.Constraint("Horizontal", 2),
    Sketcher.Constraint("Horizontal", 3),
    Sketcher.Constraint("Vertical", 4),
    Sketcher.Constraint("Vertical", 7),
    Sketcher.Constraint("Horizontal", 8),
    Sketcher.Constraint("Horizontal", 9),
    Sketcher.Constraint("Vertical", 10),
    Sketcher.Constraint("Coincident", 3, 2, -1, 1),
    Sketcher.Constraint("PointOnObject", 1, 2, -1),
    Sketcher.Constraint("PointOnObject", 6, 2, -2),
    Sketcher.Constraint("Perpendicular", 0, 5),
    Sketcher.Constraint("Perpendicular", 5, 6),
    Sketcher.Constraint("Perpendicular", 6, 11),
    Sketcher.Constraint("Horizontal", 0, 2, 4, 2),
    Sketcher.Constraint("Horizontal", 8, 2, 9, 2),
    Sketcher.Constraint("Horizontal", 6, 2, 10, 2),
    Sketcher.Constraint("Vertical", 5, 2, 8, 2),
    Sketcher.Constraint("Equal", 2, 3),
    Sketcher.Constraint("DistanceY", -1, 1, 7, 2, Q("12 in")),
    Sketcher.Constraint("DistanceX", -1, 1, 0, 2, Q("1.5 in")),
    Sketcher.Constraint("DistanceX", 8, 2, 11, 2, Q("0.5 in")),
    Sketcher.Constraint("DistanceX", 2, 2, 2, 1, Q("0.375 in")),
])
pocket24 = doc.addObject("PartDesign::Pocket", "Pocket023")
body.addObject(pocket24)
pocket24.Profile = sketch25
pocket24.Type = "ThroughAll"
pocket24.Reversed = True

doc.recompute()
